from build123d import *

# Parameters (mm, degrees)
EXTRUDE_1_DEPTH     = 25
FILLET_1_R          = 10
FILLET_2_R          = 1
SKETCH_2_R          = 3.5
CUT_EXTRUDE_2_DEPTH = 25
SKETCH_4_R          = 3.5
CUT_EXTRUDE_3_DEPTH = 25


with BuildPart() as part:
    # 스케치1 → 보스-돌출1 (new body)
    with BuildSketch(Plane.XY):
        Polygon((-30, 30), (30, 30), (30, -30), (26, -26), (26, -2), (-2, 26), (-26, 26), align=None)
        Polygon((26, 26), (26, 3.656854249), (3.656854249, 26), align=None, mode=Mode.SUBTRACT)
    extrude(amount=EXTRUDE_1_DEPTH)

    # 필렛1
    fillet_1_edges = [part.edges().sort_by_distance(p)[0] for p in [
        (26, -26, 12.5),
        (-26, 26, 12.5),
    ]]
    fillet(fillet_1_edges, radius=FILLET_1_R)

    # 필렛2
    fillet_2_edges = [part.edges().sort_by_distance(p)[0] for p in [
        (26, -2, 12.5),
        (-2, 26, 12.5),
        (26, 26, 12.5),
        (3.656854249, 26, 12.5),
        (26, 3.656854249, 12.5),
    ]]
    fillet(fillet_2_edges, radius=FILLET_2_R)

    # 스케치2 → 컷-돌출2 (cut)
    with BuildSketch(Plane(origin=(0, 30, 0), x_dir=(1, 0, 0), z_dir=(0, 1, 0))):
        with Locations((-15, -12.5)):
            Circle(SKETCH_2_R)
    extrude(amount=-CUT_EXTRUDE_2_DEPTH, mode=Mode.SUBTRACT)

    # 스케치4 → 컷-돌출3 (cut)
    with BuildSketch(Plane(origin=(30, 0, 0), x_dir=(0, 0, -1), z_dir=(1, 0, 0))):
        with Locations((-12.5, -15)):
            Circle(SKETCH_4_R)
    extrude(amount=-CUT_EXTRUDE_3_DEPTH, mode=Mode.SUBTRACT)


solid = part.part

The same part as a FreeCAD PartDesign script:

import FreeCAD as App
import Part
import Sketcher

V = App.Vector


def edges_at(feature, points):
    """Names of the edges that pass closest to the given points."""
    edges = feature.Shape.Edges
    near = lambda p: min(range(len(edges)), key=lambda i: edges[i].distToShape(Part.Vertex(*p))[0])
    return sorted({f"Edge{near(p) + 1}" for p in points})

doc = App.newDocument("Part")
body = doc.addObject("PartDesign::Body", "Body")

sketch1 = body.newObject("Sketcher::SketchObject", "Sketch")
sketch1.AttachmentSupport = (doc.getObject("XY_Plane"), [""])
sketch1.MapMode = "FlatFace"
sketch1.addGeometry([
    Part.LineSegment(V(30, 30, 0), V(-30, 30, 0)),
    Part.LineSegment(V(-30, 30, 0), V(-26, 26, 0)),
    Part.LineSegment(V(-26, 26, 0), V(-2, 26, 0)),
    Part.LineSegment(V(-2, 26, 0), V(26, -2, 0)),
    Part.LineSegment(V(26, -2, 0), V(26, -26, 0)),
    Part.LineSegment(V(26, -26, 0), V(30, -30, 0)),
    Part.LineSegment(V(30, -30, 0), V(30, 30, 0)),
    Part.LineSegment(V(26, 26, 0), V(26, 3.656854, 0)),
    Part.LineSegment(V(26, 3.656854, 0), V(3.656854, 26, 0)),
    Part.LineSegment(V(3.656854, 26, 0), V(26, 26, 0)),
], False)
sketch1.addConstraint([
    Sketcher.Constraint("Coincident", 0, 2, 1, 1),
    Sketcher.Constraint("Coincident", 1, 2, 2, 1),
    Sketcher.Constraint("Coincident", 2, 2, 3, 1),
    Sketcher.Constraint("Coincident", 3, 2, 4, 1),
    Sketcher.Constraint("Coincident", 4, 2, 5, 1),
    Sketcher.Constraint("Coincident", 5, 2, 6, 1),
    Sketcher.Constraint("Coincident", 6, 2, 0, 1),
    Sketcher.Constraint("Coincident", 7, 2, 8, 1),
    Sketcher.Constraint("Coincident", 8, 2, 9, 1),
    Sketcher.Constraint("Coincident", 9, 2, 7, 1),
    Sketcher.Constraint("Horizontal", 0),
    Sketcher.Constraint("Horizontal", 2),
    Sketcher.Constraint("Vertical", 4),
    Sketcher.Constraint("Vertical", 6),
    Sketcher.Constraint("Vertical", 7),
    Sketcher.Constraint("Horizontal", 9),
    Sketcher.Constraint("Symmetric", 1, 2, 4, 2, -1, 1),
    Sketcher.Constraint("Symmetric", 0, 2, 5, 2, -1, 1),
    Sketcher.Constraint("Symmetric", 1, 2, 9, 2, -2),
    Sketcher.Constraint("Parallel", 1, 3),
    Sketcher.Constraint("Parallel", 5, 8),
    Sketcher.Constraint("Equal", 2, 4),
    Sketcher.Constraint("Equal", 0, 6),
    Sketcher.Constraint("DistanceX", 0, 2, 0, 1, 60.0),
    Sketcher.Constraint("DistanceX", 2, 1, 2, 2, 24.0),
    Sketcher.Constraint("DistanceX", 1, 2, -1, 1, 26.0),
    Sketcher.Constraint("Distance", 8, 31.59798),
])
pad1 = body.newObject("PartDesign::Pad", "Pad")
pad1.Profile = sketch1
pad1.Length = 25
doc.recompute()

fillet = body.newObject("PartDesign::Fillet", "Fillet")
fillet.Base = (pad1, edges_at(pad1, [(26, -26, 12.5), (-26, 26, 12.5)]))
fillet.Radius = 10
doc.recompute()

fillet2 = body.newObject("PartDesign::Fillet", "Fillet001")
fillet2.Base = (fillet, edges_at(fillet, [
    (26, -2, 12.5),
    (-2, 26, 12.5),
    (26, 26, 12.5),
    (3.657, 26, 12.5),
    (26, 3.657, 12.5),
]))
fillet2.Radius = 1

sketch2 = body.newObject("Sketcher::SketchObject", "Sketch001")
sketch2.AttachmentSupport = (doc.getObject("XZ_Plane"), [""])
sketch2.MapMode = "FlatFace"
sketch2.AttachmentOffset = App.Placement(V(0, 0, -30), App.Rotation())
sketch2.addGeometry(Part.Circle(V(-15, 12.5, 0), V(0, 0, 1), 3.5), False)
sketch2.addConstraint([
    Sketcher.Constraint("Diameter", 0, 7.0),
    Sketcher.Constraint("DistanceX", 0, 3, -1, 1, 15.0),
    Sketcher.Constraint("DistanceY", -1, 1, 0, 3, 12.5),
])
pocket1 = body.newObject("PartDesign::Pocket", "Pocket")
pocket1.Profile = sketch2
pocket1.Length = 25
pocket1.Reversed = True

sketch3 = body.newObject("Sketcher::SketchObject", "Sketch002")
sketch3.AttachmentSupport = (doc.getObject("YZ_Plane"), [""])
sketch3.MapMode = "FlatFace"
sketch3.AttachmentOffset = App.Placement(V(0, 0, 30), App.Rotation())
sketch3.addGeometry(Part.Circle(V(-15, 12.5, 0), V(0, 0, 1), 3.5), False)
sketch3.addConstraint([
    Sketcher.Constraint("Diameter", 0, 7.0),
    Sketcher.Constraint("DistanceX", 0, 3, -1, 1, 15.0),
    Sketcher.Constraint("DistanceY", -1, 1, 0, 3, 12.5),
])
pocket2 = body.newObject("PartDesign::Pocket", "Pocket001")
pocket2.Profile = sketch3
pocket2.Length = 25

doc.recompute()
